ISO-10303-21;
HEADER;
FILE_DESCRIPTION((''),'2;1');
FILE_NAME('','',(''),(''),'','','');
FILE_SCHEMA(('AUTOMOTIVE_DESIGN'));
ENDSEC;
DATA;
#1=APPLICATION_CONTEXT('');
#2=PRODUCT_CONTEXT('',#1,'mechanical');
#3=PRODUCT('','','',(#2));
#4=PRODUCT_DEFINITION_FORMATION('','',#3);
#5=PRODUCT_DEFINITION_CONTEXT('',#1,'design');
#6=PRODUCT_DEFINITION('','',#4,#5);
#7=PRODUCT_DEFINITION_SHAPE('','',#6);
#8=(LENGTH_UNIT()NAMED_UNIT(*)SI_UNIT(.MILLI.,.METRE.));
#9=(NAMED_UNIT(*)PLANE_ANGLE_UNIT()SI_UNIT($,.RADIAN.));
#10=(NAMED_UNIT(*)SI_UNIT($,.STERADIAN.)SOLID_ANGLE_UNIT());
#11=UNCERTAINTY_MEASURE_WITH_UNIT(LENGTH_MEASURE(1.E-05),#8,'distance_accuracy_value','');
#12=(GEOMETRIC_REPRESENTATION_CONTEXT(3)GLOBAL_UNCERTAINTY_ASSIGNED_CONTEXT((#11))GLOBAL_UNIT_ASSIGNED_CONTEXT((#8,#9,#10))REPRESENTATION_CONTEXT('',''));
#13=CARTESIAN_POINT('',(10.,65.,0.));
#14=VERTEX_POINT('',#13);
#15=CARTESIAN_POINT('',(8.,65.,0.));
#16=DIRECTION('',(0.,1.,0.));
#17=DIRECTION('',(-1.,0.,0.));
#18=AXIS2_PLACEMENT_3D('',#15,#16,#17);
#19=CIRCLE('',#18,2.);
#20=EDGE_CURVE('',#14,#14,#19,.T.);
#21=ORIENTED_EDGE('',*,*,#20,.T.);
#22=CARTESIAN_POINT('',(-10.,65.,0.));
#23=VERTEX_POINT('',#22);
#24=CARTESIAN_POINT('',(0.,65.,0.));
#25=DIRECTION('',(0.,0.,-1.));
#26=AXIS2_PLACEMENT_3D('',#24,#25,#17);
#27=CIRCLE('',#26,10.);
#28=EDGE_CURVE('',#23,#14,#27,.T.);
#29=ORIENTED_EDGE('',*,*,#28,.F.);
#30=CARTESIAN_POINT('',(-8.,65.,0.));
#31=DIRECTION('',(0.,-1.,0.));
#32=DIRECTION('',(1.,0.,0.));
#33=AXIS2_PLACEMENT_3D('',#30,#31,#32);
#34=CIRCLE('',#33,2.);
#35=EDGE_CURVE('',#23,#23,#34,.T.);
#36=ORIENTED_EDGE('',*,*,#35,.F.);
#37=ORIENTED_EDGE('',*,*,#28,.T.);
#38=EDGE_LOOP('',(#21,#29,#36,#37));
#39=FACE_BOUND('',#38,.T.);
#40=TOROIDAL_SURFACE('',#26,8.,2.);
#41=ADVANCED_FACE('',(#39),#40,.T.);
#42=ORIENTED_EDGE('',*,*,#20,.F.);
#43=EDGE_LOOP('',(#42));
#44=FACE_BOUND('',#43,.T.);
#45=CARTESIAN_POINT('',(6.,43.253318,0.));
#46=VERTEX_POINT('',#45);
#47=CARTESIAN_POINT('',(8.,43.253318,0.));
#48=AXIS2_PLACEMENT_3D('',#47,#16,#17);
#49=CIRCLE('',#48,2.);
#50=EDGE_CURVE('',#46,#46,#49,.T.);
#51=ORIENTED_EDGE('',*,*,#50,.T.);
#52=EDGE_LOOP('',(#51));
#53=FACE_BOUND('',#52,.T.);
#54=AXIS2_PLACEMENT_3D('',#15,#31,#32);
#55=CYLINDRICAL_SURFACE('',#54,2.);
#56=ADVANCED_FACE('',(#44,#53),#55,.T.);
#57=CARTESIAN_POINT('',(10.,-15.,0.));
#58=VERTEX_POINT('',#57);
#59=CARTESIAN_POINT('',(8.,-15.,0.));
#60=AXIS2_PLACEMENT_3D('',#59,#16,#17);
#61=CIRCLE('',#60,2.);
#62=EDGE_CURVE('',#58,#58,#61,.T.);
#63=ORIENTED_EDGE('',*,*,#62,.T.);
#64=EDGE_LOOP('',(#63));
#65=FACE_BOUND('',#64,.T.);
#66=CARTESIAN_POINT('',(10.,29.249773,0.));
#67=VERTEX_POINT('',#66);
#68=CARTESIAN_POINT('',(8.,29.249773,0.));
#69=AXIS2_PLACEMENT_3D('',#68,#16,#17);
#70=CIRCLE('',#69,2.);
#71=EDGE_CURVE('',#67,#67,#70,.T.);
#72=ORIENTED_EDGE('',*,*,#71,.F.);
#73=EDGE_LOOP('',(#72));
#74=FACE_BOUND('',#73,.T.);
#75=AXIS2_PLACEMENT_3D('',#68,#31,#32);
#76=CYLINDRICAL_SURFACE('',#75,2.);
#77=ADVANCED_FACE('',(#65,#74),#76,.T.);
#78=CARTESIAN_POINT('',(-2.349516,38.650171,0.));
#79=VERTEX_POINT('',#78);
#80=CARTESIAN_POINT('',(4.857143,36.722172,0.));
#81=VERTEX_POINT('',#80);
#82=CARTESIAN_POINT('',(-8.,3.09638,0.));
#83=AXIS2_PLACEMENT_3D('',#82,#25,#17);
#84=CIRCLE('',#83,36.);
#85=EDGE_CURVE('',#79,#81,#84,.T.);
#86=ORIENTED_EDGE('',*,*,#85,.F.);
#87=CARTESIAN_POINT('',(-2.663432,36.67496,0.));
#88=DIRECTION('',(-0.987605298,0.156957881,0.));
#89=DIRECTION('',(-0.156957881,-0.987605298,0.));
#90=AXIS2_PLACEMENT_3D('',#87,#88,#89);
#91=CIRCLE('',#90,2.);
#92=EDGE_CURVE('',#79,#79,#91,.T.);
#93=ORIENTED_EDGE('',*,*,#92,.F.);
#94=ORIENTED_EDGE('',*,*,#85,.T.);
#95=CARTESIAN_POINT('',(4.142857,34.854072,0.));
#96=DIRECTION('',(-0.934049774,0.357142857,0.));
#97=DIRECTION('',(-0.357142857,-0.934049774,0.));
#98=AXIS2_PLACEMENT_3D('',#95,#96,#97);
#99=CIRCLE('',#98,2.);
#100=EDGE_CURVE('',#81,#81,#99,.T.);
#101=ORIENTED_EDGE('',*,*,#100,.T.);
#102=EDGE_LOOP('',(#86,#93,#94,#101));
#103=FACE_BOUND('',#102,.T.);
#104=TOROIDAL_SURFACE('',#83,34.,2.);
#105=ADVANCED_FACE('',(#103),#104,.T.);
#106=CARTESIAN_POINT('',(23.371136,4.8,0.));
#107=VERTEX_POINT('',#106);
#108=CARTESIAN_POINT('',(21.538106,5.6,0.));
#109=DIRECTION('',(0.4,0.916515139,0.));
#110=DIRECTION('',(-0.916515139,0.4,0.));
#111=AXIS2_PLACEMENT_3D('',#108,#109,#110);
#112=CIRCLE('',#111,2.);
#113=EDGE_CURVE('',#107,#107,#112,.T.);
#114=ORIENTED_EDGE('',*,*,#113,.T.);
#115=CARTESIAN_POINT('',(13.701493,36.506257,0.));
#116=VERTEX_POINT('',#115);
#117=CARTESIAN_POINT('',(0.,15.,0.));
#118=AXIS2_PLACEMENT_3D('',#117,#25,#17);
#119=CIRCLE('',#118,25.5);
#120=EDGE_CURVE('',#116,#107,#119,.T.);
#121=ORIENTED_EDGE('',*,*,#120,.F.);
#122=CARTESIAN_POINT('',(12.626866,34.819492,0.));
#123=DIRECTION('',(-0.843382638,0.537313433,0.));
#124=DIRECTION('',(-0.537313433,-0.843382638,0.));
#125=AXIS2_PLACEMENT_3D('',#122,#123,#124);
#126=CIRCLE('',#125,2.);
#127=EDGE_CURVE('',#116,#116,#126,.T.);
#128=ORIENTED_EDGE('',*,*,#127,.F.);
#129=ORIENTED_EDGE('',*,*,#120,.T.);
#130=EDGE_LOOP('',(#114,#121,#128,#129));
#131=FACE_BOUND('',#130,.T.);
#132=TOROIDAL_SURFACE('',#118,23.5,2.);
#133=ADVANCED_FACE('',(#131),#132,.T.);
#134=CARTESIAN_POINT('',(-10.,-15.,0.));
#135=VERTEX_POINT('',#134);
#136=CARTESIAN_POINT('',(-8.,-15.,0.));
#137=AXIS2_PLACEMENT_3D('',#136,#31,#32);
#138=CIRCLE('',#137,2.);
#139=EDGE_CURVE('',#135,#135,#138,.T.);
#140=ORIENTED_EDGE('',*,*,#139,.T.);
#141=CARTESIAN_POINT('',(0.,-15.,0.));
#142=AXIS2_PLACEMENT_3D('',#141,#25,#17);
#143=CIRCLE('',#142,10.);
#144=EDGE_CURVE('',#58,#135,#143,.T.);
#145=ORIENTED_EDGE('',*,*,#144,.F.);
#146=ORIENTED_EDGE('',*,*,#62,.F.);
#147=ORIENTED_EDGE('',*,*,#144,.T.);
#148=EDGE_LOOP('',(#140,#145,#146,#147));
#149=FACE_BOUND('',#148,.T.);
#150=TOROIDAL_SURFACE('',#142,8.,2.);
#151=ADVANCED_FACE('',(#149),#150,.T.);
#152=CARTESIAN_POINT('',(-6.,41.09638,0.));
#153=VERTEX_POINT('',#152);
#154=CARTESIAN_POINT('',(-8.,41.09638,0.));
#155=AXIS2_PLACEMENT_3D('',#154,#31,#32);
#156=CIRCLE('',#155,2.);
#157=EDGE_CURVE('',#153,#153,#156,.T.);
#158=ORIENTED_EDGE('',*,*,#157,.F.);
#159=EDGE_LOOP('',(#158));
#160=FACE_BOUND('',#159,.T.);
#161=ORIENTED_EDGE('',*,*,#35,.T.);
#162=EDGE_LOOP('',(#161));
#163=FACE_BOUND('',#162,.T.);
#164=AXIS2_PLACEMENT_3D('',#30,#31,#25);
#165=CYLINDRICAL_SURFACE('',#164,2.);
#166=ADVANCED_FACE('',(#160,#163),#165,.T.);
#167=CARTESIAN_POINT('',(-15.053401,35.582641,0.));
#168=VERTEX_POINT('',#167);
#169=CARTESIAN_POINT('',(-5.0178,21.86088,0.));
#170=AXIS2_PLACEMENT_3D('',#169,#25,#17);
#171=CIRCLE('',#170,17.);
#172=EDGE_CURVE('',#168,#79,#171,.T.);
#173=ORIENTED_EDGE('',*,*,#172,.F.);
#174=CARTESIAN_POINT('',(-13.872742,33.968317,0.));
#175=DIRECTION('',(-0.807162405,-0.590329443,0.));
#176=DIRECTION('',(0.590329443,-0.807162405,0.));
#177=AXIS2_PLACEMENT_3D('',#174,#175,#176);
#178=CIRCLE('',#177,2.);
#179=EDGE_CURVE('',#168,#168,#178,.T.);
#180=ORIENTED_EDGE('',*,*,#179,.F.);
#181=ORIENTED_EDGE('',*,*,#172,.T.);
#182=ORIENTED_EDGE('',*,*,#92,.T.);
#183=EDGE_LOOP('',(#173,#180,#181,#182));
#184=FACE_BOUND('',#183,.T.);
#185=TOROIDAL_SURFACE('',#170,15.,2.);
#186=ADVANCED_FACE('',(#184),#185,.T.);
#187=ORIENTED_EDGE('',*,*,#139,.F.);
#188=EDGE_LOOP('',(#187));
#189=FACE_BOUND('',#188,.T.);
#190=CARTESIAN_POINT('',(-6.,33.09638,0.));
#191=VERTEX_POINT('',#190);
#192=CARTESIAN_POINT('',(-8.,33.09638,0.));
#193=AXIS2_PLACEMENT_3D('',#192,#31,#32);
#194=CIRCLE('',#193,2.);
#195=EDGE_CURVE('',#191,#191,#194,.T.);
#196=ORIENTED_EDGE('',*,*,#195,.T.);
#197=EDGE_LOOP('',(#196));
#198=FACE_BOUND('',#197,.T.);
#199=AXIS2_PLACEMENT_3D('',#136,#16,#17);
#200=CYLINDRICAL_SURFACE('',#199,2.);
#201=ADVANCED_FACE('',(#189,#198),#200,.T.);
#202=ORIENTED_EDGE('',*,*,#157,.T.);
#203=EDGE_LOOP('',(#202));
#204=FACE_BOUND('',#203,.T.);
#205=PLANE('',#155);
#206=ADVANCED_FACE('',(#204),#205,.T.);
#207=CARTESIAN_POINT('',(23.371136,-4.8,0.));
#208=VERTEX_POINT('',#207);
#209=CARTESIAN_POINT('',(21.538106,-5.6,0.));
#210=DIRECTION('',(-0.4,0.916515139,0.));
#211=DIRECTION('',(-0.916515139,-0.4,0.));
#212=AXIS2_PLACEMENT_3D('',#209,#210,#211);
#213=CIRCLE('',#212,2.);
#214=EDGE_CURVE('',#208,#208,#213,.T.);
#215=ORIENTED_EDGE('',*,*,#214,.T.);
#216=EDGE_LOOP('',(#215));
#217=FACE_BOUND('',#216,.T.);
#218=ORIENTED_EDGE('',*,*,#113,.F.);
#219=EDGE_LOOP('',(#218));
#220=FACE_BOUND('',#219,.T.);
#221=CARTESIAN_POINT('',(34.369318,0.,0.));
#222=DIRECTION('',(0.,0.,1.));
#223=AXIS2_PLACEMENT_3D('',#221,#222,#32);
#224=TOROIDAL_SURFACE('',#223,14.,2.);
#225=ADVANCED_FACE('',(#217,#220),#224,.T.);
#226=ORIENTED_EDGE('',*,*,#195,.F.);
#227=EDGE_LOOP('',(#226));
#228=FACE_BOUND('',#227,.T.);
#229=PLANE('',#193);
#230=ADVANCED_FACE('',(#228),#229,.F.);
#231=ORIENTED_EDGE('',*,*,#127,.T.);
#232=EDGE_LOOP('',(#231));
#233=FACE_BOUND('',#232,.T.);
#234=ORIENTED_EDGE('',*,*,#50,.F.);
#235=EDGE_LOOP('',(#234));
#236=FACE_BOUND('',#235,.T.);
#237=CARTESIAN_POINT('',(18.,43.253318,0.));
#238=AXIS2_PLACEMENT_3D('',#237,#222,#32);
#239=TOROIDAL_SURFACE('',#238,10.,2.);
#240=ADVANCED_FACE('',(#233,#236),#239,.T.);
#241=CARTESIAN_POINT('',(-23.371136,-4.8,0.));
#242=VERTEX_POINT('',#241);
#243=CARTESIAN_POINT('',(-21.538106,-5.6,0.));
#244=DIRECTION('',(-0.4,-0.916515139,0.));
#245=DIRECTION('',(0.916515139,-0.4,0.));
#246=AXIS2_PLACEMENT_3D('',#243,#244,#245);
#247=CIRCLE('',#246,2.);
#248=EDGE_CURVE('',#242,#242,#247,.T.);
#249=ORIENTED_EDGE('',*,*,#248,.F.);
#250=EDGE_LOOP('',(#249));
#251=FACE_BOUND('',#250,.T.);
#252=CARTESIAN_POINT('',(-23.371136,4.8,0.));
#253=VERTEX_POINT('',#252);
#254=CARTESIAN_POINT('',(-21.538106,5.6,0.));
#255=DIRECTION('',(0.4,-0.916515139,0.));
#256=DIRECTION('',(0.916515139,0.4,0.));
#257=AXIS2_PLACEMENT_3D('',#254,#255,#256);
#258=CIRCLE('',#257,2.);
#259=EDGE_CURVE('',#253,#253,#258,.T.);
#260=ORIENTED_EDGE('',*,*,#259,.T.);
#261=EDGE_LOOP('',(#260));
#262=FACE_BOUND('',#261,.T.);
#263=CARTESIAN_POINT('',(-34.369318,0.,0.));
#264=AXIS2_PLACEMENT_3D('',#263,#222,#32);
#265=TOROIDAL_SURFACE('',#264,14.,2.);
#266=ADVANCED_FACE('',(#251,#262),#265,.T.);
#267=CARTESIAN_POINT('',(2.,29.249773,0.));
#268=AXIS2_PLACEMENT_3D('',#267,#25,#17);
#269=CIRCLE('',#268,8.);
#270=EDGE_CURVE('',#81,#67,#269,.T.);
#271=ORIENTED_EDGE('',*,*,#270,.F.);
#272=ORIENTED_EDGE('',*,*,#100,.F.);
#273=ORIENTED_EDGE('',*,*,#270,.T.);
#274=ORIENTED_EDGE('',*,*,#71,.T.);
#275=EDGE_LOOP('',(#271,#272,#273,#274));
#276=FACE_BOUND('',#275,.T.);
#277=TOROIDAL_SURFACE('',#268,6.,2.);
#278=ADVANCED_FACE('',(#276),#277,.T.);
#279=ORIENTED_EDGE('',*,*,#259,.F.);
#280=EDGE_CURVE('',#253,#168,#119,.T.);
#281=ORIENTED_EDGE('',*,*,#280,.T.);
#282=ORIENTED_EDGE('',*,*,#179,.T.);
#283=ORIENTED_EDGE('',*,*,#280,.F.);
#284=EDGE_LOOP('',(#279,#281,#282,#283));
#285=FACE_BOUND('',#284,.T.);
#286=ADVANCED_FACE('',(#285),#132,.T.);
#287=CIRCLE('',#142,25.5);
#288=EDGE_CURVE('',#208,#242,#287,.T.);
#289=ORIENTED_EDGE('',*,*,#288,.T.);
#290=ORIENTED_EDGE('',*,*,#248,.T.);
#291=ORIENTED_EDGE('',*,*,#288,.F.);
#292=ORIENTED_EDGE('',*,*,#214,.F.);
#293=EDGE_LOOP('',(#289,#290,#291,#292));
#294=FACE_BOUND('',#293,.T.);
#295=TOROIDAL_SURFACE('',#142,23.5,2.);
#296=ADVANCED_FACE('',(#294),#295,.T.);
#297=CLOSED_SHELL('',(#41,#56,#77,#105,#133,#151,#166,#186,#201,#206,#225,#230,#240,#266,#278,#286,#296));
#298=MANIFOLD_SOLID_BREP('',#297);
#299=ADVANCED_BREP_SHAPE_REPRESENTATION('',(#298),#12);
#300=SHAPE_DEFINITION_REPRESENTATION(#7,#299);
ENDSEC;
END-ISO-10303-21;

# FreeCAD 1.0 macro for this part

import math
import FreeCAD as App
import Part
import Sketcher

doc = App.newDocument("Part")
body = doc.addObject("PartDesign::Body", "Body")

sketch1 = body.newObject("Sketcher::SketchObject", "Sketch")
sketch1.AttachmentSupport = (doc.getObject("XZ_Plane"), [""])
sketch1.MapMode = "FlatFace"
sketch1.AttachmentOffset = App.Placement(App.Vector(0, 0, -41.09638), App.Rotation())
sketch1.addGeometry(Part.Circle(App.Vector(-8, 0, 0), App.Vector(0, 0, 1), 2), False)
sketch1.addConstraint([
    Sketcher.Constraint("PointOnObject", 0, 3, -1),
    Sketcher.Constraint("Diameter", 0, 4.0),
    Sketcher.Constraint("DistanceX", 0, 3, -1, 1, 8.0),
])

sketch2 = body.newObject("Sketcher::SketchObject", "Sketch001")
sketch2.AttachmentSupport = (doc.getObject("XY_Plane"), [""])
sketch2.MapMode = "FlatFace"
sketch2.addGeometry([
    Part.LineSegment(App.Vector(-8, 33.09638, 0), App.Vector(-8, -15, 0)),
    Part.ArcOfCircle(Part.Circle(App.Vector(0, -15, 0), App.Vector(0, 0, 1), 8), math.radians(180), math.radians(360)),
    Part.LineSegment(App.Vector(8, -15, 0), App.Vector(8, 29.249773, 0)),
    Part.ArcOfCircle(Part.Circle(App.Vector(2, 29.249773, 0), App.Vector(0, 0, 1), 6), math.radians(0), math.radians(69.075168)),
    Part.ArcOfCircle(Part.Circle(App.Vector(-8, 3.09638, 0), App.Vector(0, 0, 1), 34), math.radians(69.075168), math.radians(80.969635)),
    Part.ArcOfCircle(Part.Circle(App.Vector(-5.0178, 21.86088, 0), App.Vector(0, 0, 1), 15), math.radians(80.969635), math.radians(126.18039)),
    Part.ArcOfCircle(Part.Circle(App.Vector(0, 15, 0), App.Vector(0, 0, 1), 23.5), math.radians(126.18039), math.radians(203.578178)),
    Part.ArcOfCircle(Part.Circle(App.Vector(-34.369318, 0, 0), App.Vector(0, 0, 1), 14), math.radians(-23.578178), math.radians(23.578178)),
    Part.ArcOfCircle(Part.Circle(App.Vector(0, -15, 0), App.Vector(0, 0, 1), 23.5), math.radians(156.421822), math.radians(383.578178)),
    Part.ArcOfCircle(Part.Circle(App.Vector(34.369318, 0, 0), App.Vector(0, 0, 1), 14), math.radians(156.421822), math.radians(203.578178)),
    Part.ArcOfCircle(Part.Circle(App.Vector(0, 15, 0), App.Vector(0, 0, 1), 23.5), math.radians(-23.578178), math.radians(57.499061)),
    Part.ArcOfCircle(Part.Circle(App.Vector(18, 43.253318, 0), App.Vector(0, 0, 1), 10), math.radians(180), math.radians(237.499061)),
    Part.LineSegment(App.Vector(8, 43.253318, 0), App.Vector(8, 65, 0)),
    Part.ArcOfCircle(Part.Circle(App.Vector(0, 65, 0), App.Vector(0, 0, 1), 8), math.radians(0), math.radians(180)),
    Part.LineSegment(App.Vector(-8, 65, 0), App.Vector(-8, 41.09638, 0)),
], False)
sketch2.addConstraint([
    Sketcher.Constraint("Tangent", 0, 2, 1, 1),
    Sketcher.Constraint("Tangent", 1, 2, 2, 1),
    Sketcher.Constraint("Tangent", 2, 2, 3, 1),
    Sketcher.Constraint("Tangent", 3, 2, 4, 1),
    Sketcher.Constraint("Tangent", 4, 2, 5, 1),
    Sketcher.Constraint("Tangent", 5, 2, 6, 1),
    Sketcher.Constraint("Tangent", 6, 2, 7, 2),
    Sketcher.Constraint("Tangent", 7, 1, 8, 1),
    Sketcher.Constraint("Tangent", 8, 2, 9, 2),
    Sketcher.Constraint("Tangent", 9, 1, 10, 1),
    Sketcher.Constraint("Tangent", 10, 2, 11, 2),
    Sketcher.Constraint("Tangent", 11, 1, 12, 1),
    Sketcher.Constraint("Tangent", 12, 2, 13, 1),
    Sketcher.Constraint("Tangent", 13, 2, 14, 1),
    Sketcher.Constraint("Vertical", 0),
    Sketcher.Constraint("Vertical", 2),
    Sketcher.Constraint("Vertical", 12),
    Sketcher.Constraint("Vertical", 14),
    Sketcher.Constraint("Coincident", 8, 3, 1, 3),
    Sketcher.Constraint("Coincident", 10, 3, 6, 3),
    Sketcher.Constraint("Equal", 6, 8),
    Sketcher.Constraint("Equal", 7, 9),
    Sketcher.Constraint("Equal", 8, 10),
    Sketcher.Constraint("Equal", 1, 13),
    Sketcher.Constraint("Symmetric", 1, 3, 6, 3, -1, 1),
    Sketcher.Constraint("PointOnObject", 1, 3, -2),
    Sketcher.Constraint("PointOnObject", 13, 3, -2),
    Sketcher.Constraint("Vertical", 4, 3, 0, 1),
    Sketcher.Constraint("Radius", 1, 8.0),
    Sketcher.Constraint("Radius", 3, 6.0),
    Sketcher.Constraint("Radius", 4, 34.0),
    Sketcher.Constraint("Radius", 5, 15.0),
    Sketcher.Constraint("Radius", 7, 14.0),
    Sketcher.Constraint("Radius", 11, 10.0),
    Sketcher.Constraint("Radius", 6, 23.5),
    Sketcher.Constraint("DistanceY", 1, 3, -1, 1, 15.0),
    Sketcher.Constraint("DistanceY", -1, 1, 13, 3, 65.0),
    Sketcher.Constraint("DistanceY", 0, 1, 14, 2, 8.0),
    Sketcher.Constraint("DistanceY", 0, 2, 0, 1, 48.09638),
    Sketcher.Constraint("DistanceX", 5, 3, -1, 1, 5.0178),
])
doc.recompute()

additivepipe = body.newObject("PartDesign::AdditivePipe", "AdditivePipe")
additivepipe.Profile = sketch1
additivepipe.Spine = (sketch2, ["Edge1", "Edge2", "Edge3", "Edge4", "Edge5", "Edge6", "Edge7", "Edge8", "Edge9", "Edge10", "Edge11", "Edge12", "Edge13", "Edge14", "Edge15"])

doc.recompute()
